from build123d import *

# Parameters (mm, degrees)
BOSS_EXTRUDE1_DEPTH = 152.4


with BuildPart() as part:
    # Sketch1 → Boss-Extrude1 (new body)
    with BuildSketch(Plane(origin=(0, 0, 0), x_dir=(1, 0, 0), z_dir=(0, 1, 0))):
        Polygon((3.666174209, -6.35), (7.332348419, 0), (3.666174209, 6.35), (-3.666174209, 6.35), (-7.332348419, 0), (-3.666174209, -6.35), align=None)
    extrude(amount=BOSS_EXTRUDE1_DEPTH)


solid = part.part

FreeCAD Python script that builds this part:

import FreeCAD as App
import Part
import Sketcher
Q = App.Units.Quantity


def add_polygon(sketch, points):
    """Adds a closed chain of lines whose ends are joined by coincident constraints."""
    first, n = sketch.GeometryCount, len(points)
    for a, b in zip(points, points[1:] + points[:1]):
        sketch.addGeometry(Part.LineSegment(App.Vector(*a, 0), App.Vector(*b, 0)), False)
    for i in range(n):
        sketch.addConstraint(Sketcher.Constraint("Coincident", first + i, 2, first + (i + 1) % n, 1))

doc = App.newDocument("Part")
params = doc.addObject("Spreadsheet::Sheet", "Params")
for row, (alias, value) in enumerate([
    ("pad1_length", "6 in"),
], start=1):
    params.set(f"A{row}", alias)
    params.set(f"B{row}", "=" + value)
    params.setAlias(f"B{row}", alias)

body = doc.addObject("PartDesign::Body", "Body")

sketch1 = body.newObject("Sketcher::SketchObject", "Sketch")
sketch1.AttachmentSupport = (doc.getObject("XZ_Plane"), [""])
sketch1.MapMode = "FlatFace"
add_polygon(sketch1, [(3.666174, 6.35), (7.332348, 0), (3.666174, -6.35), (-3.666174, -6.35), (-7.332348, 0), (-3.666174, 6.35)])
sketch1.addConstraint(Sketcher.Constraint("Horizontal", 2))
sketch1.addConstraint(Sketcher.Constraint("Horizontal", 5))
sketch1.addConstraint(Sketcher.Constraint("Symmetric", 0, 2, 3, 2, -1, 1))
sketch1.addConstraint(Sketcher.Constraint("Symmetric", 1, 2, 4, 2, -1, 1))
sketch1.addConstraint(Sketcher.Constraint("PointOnObject", 0, 2, -1))
sketch1.addConstraint(Sketcher.Constraint("Parallel", 0, 3))
sketch1.addConstraint(Sketcher.Constraint("Vertical", 2, 2, 4, 2))
sketch1.addConstraint(Sketcher.Constraint("Angle", 0, Q("-60 deg")))
sketch1.addConstraint(Sketcher.Constraint("DistanceY", 2, 2, 4, 2, Q("0.5 in")))
sketch1.addConstraint(Sketcher.Constraint("DistanceX", 2, 2, 2, 1, 7.332348))
pad1 = body.newObject("PartDesign::Pad", "Pad")
pad1.Profile = sketch1
pad1.setExpression("Length", "Params.pad1_length")
pad1.Reversed = True

doc.recompute()
